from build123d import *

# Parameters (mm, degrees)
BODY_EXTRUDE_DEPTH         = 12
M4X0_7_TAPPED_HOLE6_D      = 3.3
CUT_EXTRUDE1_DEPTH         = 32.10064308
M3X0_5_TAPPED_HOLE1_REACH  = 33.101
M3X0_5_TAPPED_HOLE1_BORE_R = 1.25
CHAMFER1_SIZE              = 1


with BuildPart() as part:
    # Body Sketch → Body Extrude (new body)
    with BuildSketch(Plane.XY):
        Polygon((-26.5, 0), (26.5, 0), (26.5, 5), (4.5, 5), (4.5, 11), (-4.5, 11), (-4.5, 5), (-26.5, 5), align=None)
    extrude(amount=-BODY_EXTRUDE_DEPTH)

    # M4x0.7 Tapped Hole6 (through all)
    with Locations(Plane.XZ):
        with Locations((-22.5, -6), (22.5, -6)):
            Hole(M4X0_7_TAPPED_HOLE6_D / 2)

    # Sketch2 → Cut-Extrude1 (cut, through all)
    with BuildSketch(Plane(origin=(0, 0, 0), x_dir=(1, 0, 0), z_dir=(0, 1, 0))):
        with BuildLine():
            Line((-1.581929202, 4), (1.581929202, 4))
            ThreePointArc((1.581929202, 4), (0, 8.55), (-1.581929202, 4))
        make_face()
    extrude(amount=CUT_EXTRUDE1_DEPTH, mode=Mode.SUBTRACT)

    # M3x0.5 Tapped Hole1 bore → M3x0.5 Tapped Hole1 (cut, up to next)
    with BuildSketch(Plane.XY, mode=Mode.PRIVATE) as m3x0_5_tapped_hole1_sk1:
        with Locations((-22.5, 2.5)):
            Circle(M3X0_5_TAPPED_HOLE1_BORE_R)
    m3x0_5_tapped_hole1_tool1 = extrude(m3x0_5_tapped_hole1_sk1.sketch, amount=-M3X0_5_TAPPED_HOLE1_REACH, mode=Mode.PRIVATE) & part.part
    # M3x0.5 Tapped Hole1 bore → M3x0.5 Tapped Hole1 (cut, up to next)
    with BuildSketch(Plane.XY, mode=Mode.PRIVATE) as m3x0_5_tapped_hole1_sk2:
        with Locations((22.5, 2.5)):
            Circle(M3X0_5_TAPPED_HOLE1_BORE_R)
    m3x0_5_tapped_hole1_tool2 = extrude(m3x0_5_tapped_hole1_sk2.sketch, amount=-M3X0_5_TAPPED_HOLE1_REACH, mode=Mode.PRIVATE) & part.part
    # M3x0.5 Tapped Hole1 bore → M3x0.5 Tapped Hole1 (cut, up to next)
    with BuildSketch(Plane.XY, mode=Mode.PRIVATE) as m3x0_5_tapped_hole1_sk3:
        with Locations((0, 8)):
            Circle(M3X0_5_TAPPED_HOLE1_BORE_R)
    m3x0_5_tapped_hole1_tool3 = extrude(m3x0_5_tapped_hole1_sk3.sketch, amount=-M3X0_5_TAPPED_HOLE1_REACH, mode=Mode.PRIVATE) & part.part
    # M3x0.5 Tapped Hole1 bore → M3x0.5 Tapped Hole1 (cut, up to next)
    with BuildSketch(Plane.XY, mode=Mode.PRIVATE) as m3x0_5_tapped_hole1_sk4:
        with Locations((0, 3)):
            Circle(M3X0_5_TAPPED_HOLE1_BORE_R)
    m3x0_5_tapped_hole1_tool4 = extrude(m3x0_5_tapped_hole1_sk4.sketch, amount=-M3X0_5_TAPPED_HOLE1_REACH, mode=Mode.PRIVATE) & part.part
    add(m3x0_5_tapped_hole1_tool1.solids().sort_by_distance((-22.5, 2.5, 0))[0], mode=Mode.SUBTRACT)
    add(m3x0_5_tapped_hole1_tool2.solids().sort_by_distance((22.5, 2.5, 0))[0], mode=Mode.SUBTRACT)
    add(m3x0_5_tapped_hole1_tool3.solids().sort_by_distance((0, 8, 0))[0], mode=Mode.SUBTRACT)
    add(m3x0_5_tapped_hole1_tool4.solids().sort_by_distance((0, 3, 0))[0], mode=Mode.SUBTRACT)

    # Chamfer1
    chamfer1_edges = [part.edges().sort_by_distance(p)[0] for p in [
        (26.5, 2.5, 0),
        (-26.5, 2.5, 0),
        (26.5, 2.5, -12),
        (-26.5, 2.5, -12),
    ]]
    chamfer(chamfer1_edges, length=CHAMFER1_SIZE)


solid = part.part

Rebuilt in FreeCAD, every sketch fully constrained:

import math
import FreeCAD as App
import Part
import Sketcher
Q = App.Units.Quantity


def edges_at(feature, points):
    """Names of the edges that pass closest to the given points."""
    edges = feature.Shape.Edges
    near = lambda p: min(range(len(edges)), key=lambda i: edges[i].distToShape(Part.Vertex(*p))[0])
    return sorted({f"Edge{near(p) + 1}" for p in points})

doc = App.newDocument("Part")
body = doc.addObject("PartDesign::Body", "Body")

# Sketch on XY plane
sketch1 = doc.addObject("Sketcher::SketchObject", "Sketch")
body.addObject(sketch1)
sketch1.AttachmentSupport = (doc.XY_Plane, [""])
sketch1.MapMode = "FlatFace"
sketch1.addGeometry([
    Part.LineSegment(App.Vector(-26, 0, 0), App.Vector(26, 0, 0)),  # 0
    Part.LineSegment(App.Vector(26, 0, 0), App.Vector(26, 5, 0)),  # 1
    Part.LineSegment(App.Vector(26, 5, 0), App.Vector(4, 5, 0)),  # 2
    Part.LineSegment(App.Vector(4, 5, 0), App.Vector(4, 11, 0)),  # 3
    Part.LineSegment(App.Vector(4, 11, 0), App.Vector(-4, 11, 0)),  # 4
    Part.LineSegment(App.Vector(-4, 11, 0), App.Vector(-4, 5, 0)),  # 5
    Part.LineSegment(App.Vector(-4, 5, 0), App.Vector(-26, 5, 0)),  # 6
    Part.LineSegment(App.Vector(-26, 5, 0), App.Vector(-26, 0, 0)),  # 7
], False)
sketch1.addConstraint([
    Sketcher.Constraint("Coincident", 0, 2, 1, 1),
    Sketcher.Constraint("Coincident", 1, 2, 2, 1),
    Sketcher.Constraint("Coincident", 2, 2, 3, 1),
    Sketcher.Constraint("Coincident", 3, 2, 4, 1),
    Sketcher.Constraint("Coincident", 4, 2, 5, 1),
    Sketcher.Constraint("Coincident", 5, 2, 6, 1),
    Sketcher.Constraint("Coincident", 6, 2, 7, 1),
    Sketcher.Constraint("Coincident", 7, 2, 0, 1),
    Sketcher.Constraint("Horizontal", 0),
    Sketcher.Constraint("Vertical", 1),
    Sketcher.Constraint("Horizontal", 2),
    Sketcher.Constraint("Vertical", 3),
    Sketcher.Constraint("Horizontal", 4),
    Sketcher.Constraint("Vertical", 5),
    Sketcher.Constraint("Horizontal", 6),
    Sketcher.Constraint("Vertical", 7),
    Sketcher.Constraint("Symmetric", 0, 2, 7, 2, -1, 1),
    Sketcher.Constraint("Symmetric", 2, 2, 5, 2, -2),
    Sketcher.Constraint("DistanceX", 0, 1, 0, 2, Q("53 mm")),
    Sketcher.Constraint("DistanceX", 2, 2, 2, 1, Q("22 mm")),
    Sketcher.Constraint("DistanceY", 1, 1, 1, 2, Q("5 mm")),
    Sketcher.Constraint("DistanceY", 3, 1, 3, 2, Q("6 mm")),
])
pad1 = doc.addObject("PartDesign::Pad", "Pad")
body.addObject(pad1)
pad1.Profile = sketch1
pad1.Length = 12
pad1.Reversed = True

# Sketch on XZ plane
sketch2 = doc.addObject("Sketcher::SketchObject", "Sketch001")
body.addObject(sketch2)
sketch2.AttachmentSupport = (doc.XZ_Plane, [""])
sketch2.MapMode = "FlatFace"
sketch2.addGeometry([
    Part.Circle(App.Vector(-22.5, -6, 0), App.Vector(0, 0, 1), 1.6),
    Part.Circle(App.Vector(22.5, -6, 0), App.Vector(0, 0, 1), 1.6),
], False)
sketch2.addConstraint([
    Sketcher.Constraint("Equal", 0, 1),
    Sketcher.Constraint("Symmetric", 0, 3, 1, 3, -2),
    Sketcher.Constraint("Diameter", 0, Q("3.3 mm")),
    Sketcher.Constraint("DistanceY", 0, 3, -1, 1, Q("6 mm")),
    Sketcher.Constraint("DistanceX", 0, 3, 1, 3, Q("45 mm")),
])
doc.recompute()
hole = doc.addObject("PartDesign::Hole", "Hole")
body.addObject(hole)
hole.Profile = sketch2
hole.ThreadType = "None"
hole.Diameter = 3.3
hole.DepthType = "ThroughAll"

# Sketch on XZ plane
sketch3 = doc.addObject("Sketcher::SketchObject", "Sketch002")
body.addObject(sketch3)
sketch3.AttachmentSupport = (doc.XZ_Plane, [""])
sketch3.MapMode = "FlatFace"
sketch3.addGeometry([
    Part.LineSegment(App.Vector(-1.6, -4, 0), App.Vector(1.6, -4, 0)),
    Part.ArcOfCircle(Part.Circle(App.Vector(0, -6, 0), App.Vector(0, 0, 1), 2.5), math.radians(128), math.radians(412)),
], False)
sketch3.addConstraint([
    Sketcher.Constraint("Coincident", 0, 1, 1, 1),
    Sketcher.Constraint("Coincident", 1, 2, 0, 2),
    Sketcher.Constraint("Horizontal", 0),
    Sketcher.Constraint("PointOnObject", 1, 3, -2),
    Sketcher.Constraint("Radius", 1, Q("2.55 mm")),
    Sketcher.Constraint("DistanceY", 1, 3, -1, 1, Q("6 mm")),
    Sketcher.Constraint("DistanceY", 0, 1, -1, 1, Q("4 mm")),
])
pocket1 = doc.addObject("PartDesign::Pocket", "Pocket")
body.addObject(pocket1)
pocket1.Profile = sketch3
pocket1.Type = "ThroughAll"

# Sketch on XY plane
sketch4 = doc.addObject("Sketcher::SketchObject", "Sketch003")
body.addObject(sketch4)
sketch4.AttachmentSupport = (doc.XY_Plane, [""])
sketch4.MapMode = "FlatFace"
sketch4.addGeometry(Part.Circle(App.Vector(-22.5, 2.5, 0), App.Vector(0, 0, 1), 1.2), False)
sketch4.addConstraint([
    Sketcher.Constraint("Diameter", 0, Q("2.5 mm")),
    Sketcher.Constraint("DistanceX", 0, 3, -1, 1, Q("22.5 mm")),
    Sketcher.Constraint("DistanceY", -1, 1, 0, 3, Q("2.5 mm")),
])
pocket2 = doc.addObject("PartDesign::Pocket", "Pocket001")
body.addObject(pocket2)
pocket2.Profile = sketch4
pocket2.Length = 4.922967

# Sketch on XY plane
sketch5 = doc.addObject("Sketcher::SketchObject", "Sketch004")
body.addObject(sketch5)
sketch5.AttachmentSupport = (doc.XY_Plane, [""])
sketch5.MapMode = "FlatFace"
sketch5.addGeometry(Part.Circle(App.Vector(22.5, 2.5, 0), App.Vector(0, 0, 1), 1.2), False)
sketch5.addConstraint([
    Sketcher.Constraint("Diameter", 0, Q("2.5 mm")),
    Sketcher.Constraint("DistanceX", -1, 1, 0, 3, Q("22.5 mm")),
    Sketcher.Constraint("DistanceY", -1, 1, 0, 3, Q("2.5 mm")),
])
pocket3 = doc.addObject("PartDesign::Pocket", "Pocket002")
body.addObject(pocket3)
pocket3.Profile = sketch5
pocket3.Length = 4.922967

# Sketch on XY plane
sketch6 = doc.addObject("Sketcher::SketchObject", "Sketch005")
body.addObject(sketch6)
sketch6.AttachmentSupport = (doc.XY_Plane, [""])
sketch6.MapMode = "FlatFace"
sketch6.addGeometry(Part.Circle(App.Vector(0, 8, 0), App.Vector(0, 0, 1), 1.2), False)
sketch6.addConstraint([
    Sketcher.Constraint("PointOnObject", 0, 3, -2),
    Sketcher.Constraint("Diameter", 0, Q("2.5 mm")),
    Sketcher.Constraint("DistanceY", -1, 1, 0, 3, Q("8 mm")),
])
pocket4 = doc.addObject("PartDesign::Pocket", "Pocket003")
body.addObject(pocket4)
pocket4.Profile = sketch6
pocket4.Type = "UpToFirst"

# Sketch on XY plane
sketch7 = doc.addObject("Sketcher::SketchObject", "Sketch006")
body.addObject(sketch7)
sketch7.AttachmentSupport = (doc.XY_Plane, [""])
sketch7.MapMode = "FlatFace"
sketch7.addGeometry(Part.Circle(App.Vector(0, 3, 0), App.Vector(0, 0, 1), 1.2), False)
sketch7.addConstraint([
    Sketcher.Constraint("PointOnObject", 0, 3, -2),
    Sketcher.Constraint("Diameter", 0, Q("2.5 mm")),
    Sketcher.Constraint("DistanceY", -1, 1, 0, 3, Q("3 mm")),
])
pocket5 = doc.addObject("PartDesign::Pocket", "Pocket004")
body.addObject(pocket5)
pocket5.Profile = sketch7
pocket5.Type = "UpToFirst"
doc.recompute()

chamfer = doc.addObject("PartDesign::Chamfer", "Chamfer")
body.addObject(chamfer)
chamfer.Base = (pocket5, edges_at(pocket5, [
    (26.5, 2.5, 0),
    (-26.5, 2.5, 0),
    (26.5, 2.5, -12),
    (-26.5, 2.5, -12),
]))
chamfer.Size = 1

doc.recompute()
